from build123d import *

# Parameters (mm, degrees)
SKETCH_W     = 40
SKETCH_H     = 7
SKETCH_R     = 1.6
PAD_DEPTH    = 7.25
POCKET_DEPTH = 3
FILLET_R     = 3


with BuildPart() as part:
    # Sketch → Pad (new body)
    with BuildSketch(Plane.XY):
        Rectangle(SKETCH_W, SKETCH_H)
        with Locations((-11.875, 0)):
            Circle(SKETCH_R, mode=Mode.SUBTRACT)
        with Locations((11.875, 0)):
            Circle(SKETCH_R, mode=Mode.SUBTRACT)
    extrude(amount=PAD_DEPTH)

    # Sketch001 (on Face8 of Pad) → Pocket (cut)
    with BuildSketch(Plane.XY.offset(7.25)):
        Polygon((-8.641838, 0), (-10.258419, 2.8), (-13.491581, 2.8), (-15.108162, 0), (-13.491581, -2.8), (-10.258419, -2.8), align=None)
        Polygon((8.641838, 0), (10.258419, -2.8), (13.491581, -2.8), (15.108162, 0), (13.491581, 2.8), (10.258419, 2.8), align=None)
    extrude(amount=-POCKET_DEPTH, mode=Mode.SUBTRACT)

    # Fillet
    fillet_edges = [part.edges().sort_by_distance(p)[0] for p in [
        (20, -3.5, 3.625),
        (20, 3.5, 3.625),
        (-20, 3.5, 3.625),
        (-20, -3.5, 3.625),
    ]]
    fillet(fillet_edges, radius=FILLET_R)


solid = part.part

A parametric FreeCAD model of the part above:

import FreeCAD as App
import Part
import Sketcher
from FreeCAD import Vector
Q = App.Units.Quantity


def edges_at(feature, points):
    """Names of the edges that pass closest to the given points."""
    edges = feature.Shape.Edges
    near = lambda p: min(range(len(edges)), key=lambda i: edges[i].distToShape(Part.Vertex(*p))[0])
    return sorted({f"Edge{near(p) + 1}" for p in points})

doc = App.newDocument("Part")
params = doc.addObject("Spreadsheet::Sheet", "Params")
for row, (alias, value) in enumerate([
    ("sketch1_diameter", "3.2 mm"),
    ("sketch1_width", "40 mm"),
    ("sketch1_height", "7 mm"),
    ("pad1_length", "7.25 mm"),
    ("pocket1_length", "3 mm"),
    ("fillet_radius", "3 mm"),
], start=1):
    params.set(f"A{row}", alias)
    params.set(f"B{row}", "=" + value)
    params.setAlias(f"B{row}", alias)

body = doc.addObject("PartDesign::Body", "Body")

# Sketch on XY plane
sketch1 = body.newObject("Sketcher::SketchObject", "Sketch")
sketch1.AttachmentSupport = (doc.getObject("XY_Plane"), [""])
sketch1.MapMode = "FlatFace"
sketch1.addGeometry([
    Part.LineSegment(Vector(-20, 3.5, 0), Vector(-20, -3.5, 0)),  # 0
    Part.LineSegment(Vector(-20, -3.5, 0), Vector(20, -3.5, 0)),  # 1
    Part.LineSegment(Vector(20, -3.5, 0), Vector(20, 3.5, 0)),  # 2
    Part.LineSegment(Vector(20, 3.5, 0), Vector(-20, 3.5, 0)),  # 3
    Part.Circle(Vector(-11.875, 0, 0), Vector(0, 0, 1), 1.6),  # 4
    Part.Circle(Vector(11.875, 0, 0), Vector(0, 0, 1), 1.6),  # 5
], False)
sketch1.addConstraint([
    Sketcher.Constraint("Coincident", 0, 2, 1, 1),
    Sketcher.Constraint("Coincident", 1, 2, 2, 1),
    Sketcher.Constraint("Coincident", 2, 2, 3, 1),
    Sketcher.Constraint("Coincident", 3, 2, 0, 1),
    Sketcher.Constraint("Vertical", 0),
    Sketcher.Constraint("Horizontal", 1),
    Sketcher.Constraint("Vertical", 2),
    Sketcher.Constraint("Horizontal", 3),
    Sketcher.Constraint("Equal", 4, 5),
    Sketcher.Constraint("Symmetric", 4, 3, 5, 3, -1, 1),
    Sketcher.Constraint("Symmetric", 0, 2, 2, 2, -1, 1),
    Sketcher.Constraint("PointOnObject", 4, 3, -1),
    Sketcher.Constraint("Diameter", 4, Q("3.2 mm")),
    Sketcher.Constraint("DistanceX", 1, 1, 1, 2, Q("40 mm")),
    Sketcher.Constraint("DistanceY", 0, 2, 0, 1, Q("7 mm")),
    Sketcher.Constraint("DistanceX", 4, 3, 5, 3, Q("23.75 mm")),
])
sketch1.setExpression("Constraints[12]", "Params.sketch1_diameter")
sketch1.setExpression("Constraints[13]", "Params.sketch1_width")
sketch1.setExpression("Constraints[14]", "Params.sketch1_height")
pad1 = body.newObject("PartDesign::Pad", "Pad")
pad1.Profile = sketch1
pad1.setExpression("Length", "Params.pad1_length")

# Sketch on XY plane
sketch2 = body.newObject("Sketcher::SketchObject", "Sketch001")
sketch2.AttachmentSupport = (doc.getObject("XY_Plane"), [""])
sketch2.MapMode = "FlatFace"
sketch2.AttachmentOffset = App.Placement(Vector(0, 0, 7.25), App.Rotation())
sketch2.addGeometry([
    Part.LineSegment(Vector(-8.641838, 0, 0), Vector(-10.258419, 2.8, 0)),  # 0
    Part.LineSegment(Vector(-10.258419, 2.8, 0), Vector(-13.491581, 2.8, 0)),  # 1
    Part.LineSegment(Vector(-13.491581, 2.8, 0), Vector(-15.108162, 0, 0)),  # 2
    Part.LineSegment(Vector(-15.108162, 0, 0), Vector(-13.491581, -2.8, 0)),  # 3
    Part.LineSegment(Vector(-13.491581, -2.8, 0), Vector(-10.258419, -2.8, 0)),  # 4
    Part.LineSegment(Vector(-10.258419, -2.8, 0), Vector(-8.641838, 0, 0)),  # 5
    Part.LineSegment(Vector(8.641838, 0, 0), Vector(10.258419, -2.8, 0)),  # 6
    Part.LineSegment(Vector(10.258419, -2.8, 0), Vector(13.491581, -2.8, 0)),  # 7
    Part.LineSegment(Vector(13.491581, -2.8, 0), Vector(15.108162, 0, 0)),  # 8
    Part.LineSegment(Vector(15.108162, 0, 0), Vector(13.491581, 2.8, 0)),  # 9
    Part.LineSegment(Vector(13.491581, 2.8, 0), Vector(10.258419, 2.8, 0)),  # 10
    Part.LineSegment(Vector(10.258419, 2.8, 0), Vector(8.641838, 0, 0)),  # 11
], False)
sketch2.addConstraint([
    Sketcher.Constraint("Coincident", 0, 2, 1, 1),
    Sketcher.Constraint("Coincident", 1, 2, 2, 1),
    Sketcher.Constraint("Coincident", 2, 2, 3, 1),
    Sketcher.Constraint("Coincident", 3, 2, 4, 1),
    Sketcher.Constraint("Coincident", 4, 2, 5, 1),
    Sketcher.Constraint("Coincident", 5, 2, 0, 1),
    Sketcher.Constraint("Coincident", 6, 2, 7, 1),
    Sketcher.Constraint("Coincident", 7, 2, 8, 1),
    Sketcher.Constraint("Coincident", 8, 2, 9, 1),
    Sketcher.Constraint("Coincident", 9, 2, 10, 1),
    Sketcher.Constraint("Coincident", 10, 2, 11, 1),
    Sketcher.Constraint("Coincident", 11, 2, 6, 1),
    Sketcher.Constraint("Horizontal", 1),
    Sketcher.Constraint("Horizontal", 4),
    Sketcher.Constraint("Horizontal", 7),
    Sketcher.Constraint("Horizontal", 10),
    Sketcher.Constraint("Symmetric", 0, 2, 6, 2, -1, 1),
    Sketcher.Constraint("Symmetric", 2, 2, 8, 2, -1, 1),
    Sketcher.Constraint("Symmetric", 3, 2, 9, 2, -1, 1),
    Sketcher.Constraint("Symmetric", 5, 2, 11, 2, -1, 1),
    Sketcher.Constraint("Symmetric", 4, 2, 6, 2, -2),
    Sketcher.Constraint("PointOnObject", 2, 2, -1),
    Sketcher.Constraint("PointOnObject", 5, 2, -1),
    Sketcher.Constraint("Parallel", 0, 3),
    Sketcher.Constraint("Parallel", 2, 5),
    Sketcher.Constraint("Parallel", 5, 8),
    Sketcher.Constraint("Parallel", 8, 11),
    Sketcher.Constraint("Angle", 0, Q("120.000004 deg")),
    Sketcher.Constraint("DistanceY", -1, 1, 0, 2, Q("2.8 mm")),
    Sketcher.Constraint("DistanceX", 3, 2, 6, 2, Q("23.75 mm")),
    Sketcher.Constraint("DistanceX", 1, 2, 1, 1, Q("3.233162 mm")),
])
pocket1 = body.newObject("PartDesign::Pocket", "Pocket")
pocket1.Profile = sketch2
pocket1.setExpression("Length", "Params.pocket1_length")
doc.recompute()

fillet = body.newObject("PartDesign::Fillet", "Fillet")
fillet.Base = (pocket1, edges_at(pocket1, [
    (20, -3.5, 3.625),
    (20, 3.5, 3.625),
    (-20, 3.5, 3.625),
    (-20, -3.5, 3.625),
]))
fillet.setExpression("Radius", "Params.fillet_radius")

doc.recompute()
